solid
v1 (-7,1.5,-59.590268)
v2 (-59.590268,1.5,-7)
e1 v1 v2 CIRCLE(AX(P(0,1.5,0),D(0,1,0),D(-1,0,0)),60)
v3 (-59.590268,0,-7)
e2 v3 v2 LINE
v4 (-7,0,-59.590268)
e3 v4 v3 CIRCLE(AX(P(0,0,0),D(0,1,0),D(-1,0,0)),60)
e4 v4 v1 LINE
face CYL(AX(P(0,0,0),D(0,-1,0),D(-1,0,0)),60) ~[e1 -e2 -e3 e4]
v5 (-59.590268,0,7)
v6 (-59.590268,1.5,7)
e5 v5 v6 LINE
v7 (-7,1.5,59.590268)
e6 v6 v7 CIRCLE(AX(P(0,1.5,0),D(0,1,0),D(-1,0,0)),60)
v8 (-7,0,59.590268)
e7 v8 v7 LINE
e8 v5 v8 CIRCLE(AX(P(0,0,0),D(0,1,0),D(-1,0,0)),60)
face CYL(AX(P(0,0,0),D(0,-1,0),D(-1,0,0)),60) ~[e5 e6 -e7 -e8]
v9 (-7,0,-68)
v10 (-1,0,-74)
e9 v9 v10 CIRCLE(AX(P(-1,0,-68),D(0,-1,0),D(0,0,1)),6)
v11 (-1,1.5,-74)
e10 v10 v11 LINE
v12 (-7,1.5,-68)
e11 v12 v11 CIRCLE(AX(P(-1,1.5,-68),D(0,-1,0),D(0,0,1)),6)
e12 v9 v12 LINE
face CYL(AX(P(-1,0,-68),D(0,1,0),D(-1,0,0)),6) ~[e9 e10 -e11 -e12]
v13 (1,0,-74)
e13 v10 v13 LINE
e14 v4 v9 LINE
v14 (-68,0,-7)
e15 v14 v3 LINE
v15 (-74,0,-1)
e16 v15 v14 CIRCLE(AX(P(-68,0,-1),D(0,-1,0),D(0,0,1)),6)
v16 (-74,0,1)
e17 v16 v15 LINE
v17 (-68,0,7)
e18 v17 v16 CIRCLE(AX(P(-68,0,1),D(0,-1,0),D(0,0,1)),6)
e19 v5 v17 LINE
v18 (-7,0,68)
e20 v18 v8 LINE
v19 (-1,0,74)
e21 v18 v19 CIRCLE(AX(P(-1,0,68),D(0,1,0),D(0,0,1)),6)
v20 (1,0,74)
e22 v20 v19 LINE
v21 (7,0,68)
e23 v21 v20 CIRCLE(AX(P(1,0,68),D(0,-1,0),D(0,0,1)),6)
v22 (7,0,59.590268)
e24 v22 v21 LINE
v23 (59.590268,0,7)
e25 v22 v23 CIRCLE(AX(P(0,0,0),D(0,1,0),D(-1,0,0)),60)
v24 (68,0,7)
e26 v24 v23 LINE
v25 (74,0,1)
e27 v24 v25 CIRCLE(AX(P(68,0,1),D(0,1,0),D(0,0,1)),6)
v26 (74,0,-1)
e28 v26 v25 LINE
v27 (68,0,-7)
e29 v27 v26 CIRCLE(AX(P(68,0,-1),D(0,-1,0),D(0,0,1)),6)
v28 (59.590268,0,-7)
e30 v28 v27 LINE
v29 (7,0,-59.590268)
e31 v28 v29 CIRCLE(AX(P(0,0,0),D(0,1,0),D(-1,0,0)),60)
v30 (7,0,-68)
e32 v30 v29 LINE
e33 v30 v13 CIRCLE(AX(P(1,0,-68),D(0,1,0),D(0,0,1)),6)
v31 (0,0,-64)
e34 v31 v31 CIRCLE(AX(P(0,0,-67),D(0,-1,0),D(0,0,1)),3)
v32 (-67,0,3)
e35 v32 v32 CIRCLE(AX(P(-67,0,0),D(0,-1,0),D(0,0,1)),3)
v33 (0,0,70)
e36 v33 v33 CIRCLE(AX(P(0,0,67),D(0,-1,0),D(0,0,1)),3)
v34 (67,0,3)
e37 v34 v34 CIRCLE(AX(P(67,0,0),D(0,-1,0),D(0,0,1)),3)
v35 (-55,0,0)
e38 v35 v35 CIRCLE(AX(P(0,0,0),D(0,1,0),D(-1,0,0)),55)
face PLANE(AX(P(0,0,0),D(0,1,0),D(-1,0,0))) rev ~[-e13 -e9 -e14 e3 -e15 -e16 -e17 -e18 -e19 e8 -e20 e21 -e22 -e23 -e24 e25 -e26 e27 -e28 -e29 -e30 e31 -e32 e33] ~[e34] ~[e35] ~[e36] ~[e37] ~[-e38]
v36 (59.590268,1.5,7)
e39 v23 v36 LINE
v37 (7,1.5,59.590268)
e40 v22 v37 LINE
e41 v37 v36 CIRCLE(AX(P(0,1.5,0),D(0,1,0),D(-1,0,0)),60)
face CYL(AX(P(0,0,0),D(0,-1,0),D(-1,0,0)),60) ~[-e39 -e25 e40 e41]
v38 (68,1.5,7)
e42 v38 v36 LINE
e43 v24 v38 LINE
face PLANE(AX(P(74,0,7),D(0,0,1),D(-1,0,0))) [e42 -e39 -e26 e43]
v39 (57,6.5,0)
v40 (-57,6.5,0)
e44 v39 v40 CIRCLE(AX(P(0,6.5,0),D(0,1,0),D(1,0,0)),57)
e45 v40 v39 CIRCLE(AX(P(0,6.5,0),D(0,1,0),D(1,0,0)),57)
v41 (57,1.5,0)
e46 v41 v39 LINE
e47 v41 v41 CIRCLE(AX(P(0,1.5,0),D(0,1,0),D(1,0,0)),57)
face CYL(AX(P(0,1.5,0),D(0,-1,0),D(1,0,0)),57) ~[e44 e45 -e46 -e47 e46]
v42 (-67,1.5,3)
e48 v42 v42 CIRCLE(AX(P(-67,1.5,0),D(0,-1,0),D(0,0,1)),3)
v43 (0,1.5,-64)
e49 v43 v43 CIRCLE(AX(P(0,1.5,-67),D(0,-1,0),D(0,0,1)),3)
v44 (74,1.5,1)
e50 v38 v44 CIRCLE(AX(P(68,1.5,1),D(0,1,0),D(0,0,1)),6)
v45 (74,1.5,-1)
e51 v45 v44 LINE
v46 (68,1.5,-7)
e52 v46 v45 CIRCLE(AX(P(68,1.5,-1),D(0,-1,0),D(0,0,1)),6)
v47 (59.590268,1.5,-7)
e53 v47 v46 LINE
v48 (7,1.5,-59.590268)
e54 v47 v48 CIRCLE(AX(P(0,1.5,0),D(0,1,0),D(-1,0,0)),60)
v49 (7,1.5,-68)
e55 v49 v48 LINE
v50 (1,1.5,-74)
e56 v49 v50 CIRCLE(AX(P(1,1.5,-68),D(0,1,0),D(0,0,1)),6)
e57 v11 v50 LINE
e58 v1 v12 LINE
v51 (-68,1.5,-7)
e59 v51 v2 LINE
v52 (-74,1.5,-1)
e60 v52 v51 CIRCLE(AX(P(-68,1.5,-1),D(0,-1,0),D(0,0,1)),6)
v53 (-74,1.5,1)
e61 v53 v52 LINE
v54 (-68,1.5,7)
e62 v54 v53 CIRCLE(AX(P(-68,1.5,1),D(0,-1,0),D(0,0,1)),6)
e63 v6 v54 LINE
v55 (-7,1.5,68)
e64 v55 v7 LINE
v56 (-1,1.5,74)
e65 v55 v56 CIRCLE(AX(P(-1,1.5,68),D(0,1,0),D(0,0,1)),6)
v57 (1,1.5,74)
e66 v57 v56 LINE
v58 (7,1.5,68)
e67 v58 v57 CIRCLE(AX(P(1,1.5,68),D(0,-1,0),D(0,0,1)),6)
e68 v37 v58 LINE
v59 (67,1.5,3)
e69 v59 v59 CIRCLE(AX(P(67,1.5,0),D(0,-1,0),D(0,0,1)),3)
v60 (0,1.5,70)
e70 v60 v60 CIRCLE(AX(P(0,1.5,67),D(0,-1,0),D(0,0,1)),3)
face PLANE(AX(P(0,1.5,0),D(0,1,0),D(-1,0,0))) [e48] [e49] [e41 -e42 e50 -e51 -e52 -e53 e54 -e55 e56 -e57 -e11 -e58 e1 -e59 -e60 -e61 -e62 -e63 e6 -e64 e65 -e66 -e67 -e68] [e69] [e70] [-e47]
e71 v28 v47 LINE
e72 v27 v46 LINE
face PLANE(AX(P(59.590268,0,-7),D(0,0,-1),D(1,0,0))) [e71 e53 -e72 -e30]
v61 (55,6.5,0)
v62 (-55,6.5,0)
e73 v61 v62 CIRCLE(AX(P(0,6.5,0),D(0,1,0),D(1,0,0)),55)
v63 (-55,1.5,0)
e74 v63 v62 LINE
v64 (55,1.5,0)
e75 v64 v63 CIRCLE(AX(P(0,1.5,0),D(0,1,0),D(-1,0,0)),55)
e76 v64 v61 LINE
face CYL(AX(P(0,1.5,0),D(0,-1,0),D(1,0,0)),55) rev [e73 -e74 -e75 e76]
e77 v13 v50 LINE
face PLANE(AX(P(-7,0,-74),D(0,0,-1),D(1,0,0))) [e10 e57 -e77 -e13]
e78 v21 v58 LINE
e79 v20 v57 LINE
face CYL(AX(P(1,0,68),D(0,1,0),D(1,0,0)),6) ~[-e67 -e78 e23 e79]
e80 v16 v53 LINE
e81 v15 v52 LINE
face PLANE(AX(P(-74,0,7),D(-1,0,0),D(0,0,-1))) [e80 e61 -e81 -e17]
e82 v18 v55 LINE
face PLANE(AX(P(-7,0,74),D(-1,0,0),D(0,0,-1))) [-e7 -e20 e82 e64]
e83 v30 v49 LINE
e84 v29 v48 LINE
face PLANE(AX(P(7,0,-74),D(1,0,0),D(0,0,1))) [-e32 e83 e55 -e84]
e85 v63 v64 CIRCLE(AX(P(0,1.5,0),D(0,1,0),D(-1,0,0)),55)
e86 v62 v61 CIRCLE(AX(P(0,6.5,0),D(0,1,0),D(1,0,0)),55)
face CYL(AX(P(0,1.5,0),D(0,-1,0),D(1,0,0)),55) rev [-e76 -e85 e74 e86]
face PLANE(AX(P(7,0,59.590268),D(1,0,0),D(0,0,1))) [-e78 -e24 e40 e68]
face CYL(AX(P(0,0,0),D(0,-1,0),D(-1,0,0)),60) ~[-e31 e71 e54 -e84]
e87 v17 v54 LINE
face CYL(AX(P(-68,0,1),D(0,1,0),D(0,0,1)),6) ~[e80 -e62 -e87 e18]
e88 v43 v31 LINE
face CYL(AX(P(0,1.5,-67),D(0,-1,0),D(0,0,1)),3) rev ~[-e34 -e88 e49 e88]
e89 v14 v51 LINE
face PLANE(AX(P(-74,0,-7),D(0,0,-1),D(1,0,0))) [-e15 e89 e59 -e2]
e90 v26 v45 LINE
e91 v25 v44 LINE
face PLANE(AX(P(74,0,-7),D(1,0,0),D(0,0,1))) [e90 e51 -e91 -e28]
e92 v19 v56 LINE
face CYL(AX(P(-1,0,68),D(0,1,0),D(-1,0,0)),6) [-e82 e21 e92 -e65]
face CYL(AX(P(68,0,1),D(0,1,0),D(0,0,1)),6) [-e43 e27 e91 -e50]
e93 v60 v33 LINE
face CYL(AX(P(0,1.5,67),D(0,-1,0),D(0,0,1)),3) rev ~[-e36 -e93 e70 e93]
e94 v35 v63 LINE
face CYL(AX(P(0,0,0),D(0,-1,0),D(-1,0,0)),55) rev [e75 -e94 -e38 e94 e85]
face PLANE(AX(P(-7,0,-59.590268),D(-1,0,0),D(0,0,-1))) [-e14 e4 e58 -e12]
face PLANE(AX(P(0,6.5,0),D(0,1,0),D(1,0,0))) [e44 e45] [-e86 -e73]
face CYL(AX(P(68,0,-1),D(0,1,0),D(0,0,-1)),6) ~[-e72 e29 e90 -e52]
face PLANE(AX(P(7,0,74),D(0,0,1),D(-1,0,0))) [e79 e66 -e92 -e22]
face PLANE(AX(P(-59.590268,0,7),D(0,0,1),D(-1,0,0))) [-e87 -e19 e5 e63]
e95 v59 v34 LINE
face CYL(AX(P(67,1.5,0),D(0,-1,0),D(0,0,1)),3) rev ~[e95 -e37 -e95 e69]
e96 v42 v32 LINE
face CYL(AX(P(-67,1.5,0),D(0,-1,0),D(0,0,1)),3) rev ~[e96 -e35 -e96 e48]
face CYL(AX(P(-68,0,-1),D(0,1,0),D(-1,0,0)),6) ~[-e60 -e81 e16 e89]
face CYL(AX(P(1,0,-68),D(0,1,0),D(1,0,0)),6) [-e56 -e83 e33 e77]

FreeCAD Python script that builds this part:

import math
import FreeCAD as App
import Part
import Sketcher


def edges_at(feature, points):
    """Names of the edges that pass closest to the given points."""
    edges = feature.Shape.Edges
    near = lambda p: min(range(len(edges)), key=lambda i: edges[i].distToShape(Part.Vertex(*p))[0])
    return sorted({f"Edge{near(p) + 1}" for p in points})

doc = App.newDocument("Part")
params = doc.addObject("Spreadsheet::Sheet", "Params")
for row, (alias, value) in enumerate([
    ("sketch1_diameter", "110 mm"),
    ("sketch1_radius", "60 mm"),
    ("sketch1_width", "14 mm"),
    ("pad1_length", "1.5 mm"),
    ("fillet_radius", "6 mm"),
    ("sketch2_diameter", "6 mm"),
    ("hole_diameter", "6 mm"),
    ("sketch3_diameter", "114 mm"),
    ("sketch3_diameter2", "110 mm"),
    ("pad2_length", "5 mm"),
], start=1):
    params.set(f"A{row}", alias)
    params.set(f"B{row}", "=" + value)
    params.setAlias(f"B{row}", alias)

body = doc.addObject("PartDesign::Body", "Body")

sketch1 = body.newObject("Sketcher::SketchObject", "Sketch")
sketch1.AttachmentSupport = (doc.getObject("XZ_Plane"), [""])
sketch1.MapMode = "FlatFace"
sketch1.addGeometry([
    Part.LineSegment(App.Vector(-60, -7, 0), App.Vector(-74, -7, 0)),
    Part.LineSegment(App.Vector(-74, -7, 0), App.Vector(-74, 7, 0)),
    Part.LineSegment(App.Vector(-74, 7, 0), App.Vector(-60, 7, 0)),
    Part.ArcOfCircle(Part.Circle(App.Vector(0, 0, 0), App.Vector(0, 0, 1), 60), math.radians(97), math.radians(173)),
    Part.LineSegment(App.Vector(-7, 60, 0), App.Vector(-7, 74, 0)),
    Part.LineSegment(App.Vector(-7, 74, 0), App.Vector(7, 74, 0)),
    Part.LineSegment(App.Vector(7, 74, 0), App.Vector(7, 60, 0)),
    Part.ArcOfCircle(Part.Circle(App.Vector(0, 0, 0), App.Vector(0, 0, 1), 60), math.radians(7), math.radians(83)),
    Part.LineSegment(App.Vector(60, 7, 0), App.Vector(74, 7, 0)),
    Part.LineSegment(App.Vector(74, 7, 0), App.Vector(74, -7, 0)),
    Part.LineSegment(App.Vector(74, -7, 0), App.Vector(60, -7, 0)),
    Part.ArcOfCircle(Part.Circle(App.Vector(0, 0, 0), App.Vector(0, 0, 1), 60), math.radians(-83), math.radians(-7)),
    Part.LineSegment(App.Vector(7, -60, 0), App.Vector(7, -74, 0)),
    Part.LineSegment(App.Vector(7, -74, 0), App.Vector(-7, -74, 0)),
    Part.LineSegment(App.Vector(-7, -74, 0), App.Vector(-7, -60, 0)),
    Part.ArcOfCircle(Part.Circle(App.Vector(0, 0, 0), App.Vector(0, 0, 1), 60), math.radians(-173), math.radians(-97)),
    Part.Circle(App.Vector(0, 0, 0), App.Vector(0, 0, 1), 55),
], False)
sketch1.addConstraint([
    Sketcher.Constraint("Coincident", 0, 2, 1, 1),
    Sketcher.Constraint("Coincident", 1, 2, 2, 1),
    Sketcher.Constraint("Coincident", 2, 2, 3, 2),
    Sketcher.Constraint("Coincident", 3, 1, 4, 1),
    Sketcher.Constraint("Coincident", 4, 2, 5, 1),
    Sketcher.Constraint("Coincident", 5, 2, 6, 1),
    Sketcher.Constraint("Coincident", 6, 2, 7, 2),
    Sketcher.Constraint("Coincident", 7, 1, 8, 1),
    Sketcher.Constraint("Coincident", 8, 2, 9, 1),
    Sketcher.Constraint("Coincident", 9, 2, 10, 1),
    Sketcher.Constraint("Coincident", 10, 2, 11, 2),
    Sketcher.Constraint("Coincident", 11, 1, 12, 1),
    Sketcher.Constraint("Coincident", 12, 2, 13, 1),
    Sketcher.Constraint("Coincident", 13, 2, 14, 1),
    Sketcher.Constraint("Coincident", 14, 2, 15, 2),
    Sketcher.Constraint("Coincident", 15, 1, 0, 1),
    Sketcher.Constraint("Horizontal", 0),
    Sketcher.Constraint("Vertical", 1),
    Sketcher.Constraint("Horizontal", 2),
    Sketcher.Constraint("Vertical", 4),
    Sketcher.Constraint("Horizontal", 5),
    Sketcher.Constraint("Vertical", 6),
    Sketcher.Constraint("Horizontal", 8),
    Sketcher.Constraint("Vertical", 9),
    Sketcher.Constraint("Horizontal", 10),
    Sketcher.Constraint("Vertical", 12),
    Sketcher.Constraint("Horizontal", 13),
    Sketcher.Constraint("Vertical", 14),
    Sketcher.Constraint("Coincident", 3, 3, -1, 1),
    Sketcher.Constraint("Coincident", 7, 3, -1, 1),
    Sketcher.Constraint("Coincident", 11, 3, -1, 1),
    Sketcher.Constraint("Coincident", 15, 3, -1, 1),
    Sketcher.Constraint("Coincident", 16, 3, -1, 1),
    Sketcher.Constraint("Equal", 3, 7),
    Sketcher.Constraint("Equal", 7, 11),
    Sketcher.Constraint("Equal", 11, 15),
    Sketcher.Constraint("Symmetric", 0, 2, 8, 2, -1, 1),
    Sketcher.Constraint("Symmetric", 4, 2, 12, 2, -1, 1),
    Sketcher.Constraint("Horizontal", 3, 1, 6, 2),
    Sketcher.Constraint("Horizontal", 2, 2, 7, 1),
    Sketcher.Constraint("Horizontal", 0, 2, 9, 2),
    Sketcher.Constraint("Horizontal", 11, 1, 14, 2),
    Sketcher.Constraint("Equal", 13, 1),
    Sketcher.Constraint("Equal", 10, 4),
    Sketcher.Constraint("Diameter", 16, 110.0),
    Sketcher.Constraint("Radius", 3, 60.0),
    Sketcher.Constraint("DistanceX", 5, 1, 5, 2, 14.0),
    Sketcher.Constraint("DistanceX", 0, 2, -1, 1, 74.0),
])
sketch1.setExpression("Constraints[44]", "Params.sketch1_diameter")
sketch1.setExpression("Constraints[45]", "Params.sketch1_radius")
sketch1.setExpression("Constraints[46]", "Params.sketch1_width")
pad1 = body.newObject("PartDesign::Pad", "Pad")
pad1.Profile = sketch1
pad1.setExpression("Length", "Params.pad1_length")
pad1.Reversed = True
doc.recompute()

fillet = body.newObject("PartDesign::Fillet", "Fillet")
fillet.Base = (pad1, edges_at(pad1, [
    (74, 0.75, -7),
    (74, 0.75, 7),
    (7, 0.75, -74),
    (-7, 0.75, -74),
    (-74, 0.75, -7),
    (-74, 0.75, 7),
    (-7, 0.75, 74),
    (7, 0.75, 74),
]))
fillet.setExpression("Radius", "Params.fillet_radius")

sketch2 = body.newObject("Sketcher::SketchObject", "Sketch001")
sketch2.AttachmentSupport = (doc.getObject("XZ_Plane"), [""])
sketch2.MapMode = "FlatFace"
sketch2.AttachmentOffset = App.Placement(App.Vector(0, 0, -1.5), App.Rotation())
sketch2.addGeometry([
    Part.Circle(App.Vector(0, 67, 0), App.Vector(0, 0, 1), 3),
    Part.Circle(App.Vector(-67, 0, 0), App.Vector(0, 0, 1), 3),
    Part.Circle(App.Vector(0, -67, 0), App.Vector(0, 0, 1), 3),
    Part.Circle(App.Vector(67, 0, 0), App.Vector(0, 0, 1), 3),
], False)
sketch2.addConstraint([
    Sketcher.Constraint("Equal", 0, 1),
    Sketcher.Constraint("Equal", 1, 2),
    Sketcher.Constraint("Equal", 2, 3),
    Sketcher.Constraint("Symmetric", 0, 3, 2, 3, -1, 1),
    Sketcher.Constraint("Symmetric", 1, 3, 3, 3, -1, 1),
    Sketcher.Constraint("PointOnObject", 0, 3, -2),
    Sketcher.Constraint("PointOnObject", 1, 3, -1),
    Sketcher.Constraint("Diameter", 0, 6.0),
    Sketcher.Constraint("DistanceY", -1, 1, 0, 3, 67.0),
    Sketcher.Constraint("DistanceX", 1, 3, -1, 1, 67.0),
])
sketch2.setExpression("Constraints[7]", "Params.sketch2_diameter")
doc.recompute()
hole = body.newObject("PartDesign::Hole", "Hole")
hole.Profile = sketch2
hole.ThreadType = "None"
hole.setExpression("Diameter", "Params.hole_diameter")
hole.DepthType = "ThroughAll"
hole.Reversed = True

sketch3 = body.newObject("Sketcher::SketchObject", "Sketch002")
sketch3.AttachmentSupport = (doc.getObject("XZ_Plane"), [""])
sketch3.MapMode = "FlatFace"
sketch3.AttachmentOffset = App.Placement(App.Vector(0, 0, -1.5), App.Rotation())
sketch3.addGeometry([
    Part.Circle(App.Vector(0, 0, 0), App.Vector(0, 0, 1), 57),
    Part.Circle(App.Vector(0, 0, 0), App.Vector(0, 0, 1), 55),
], False)
sketch3.addConstraint([
    Sketcher.Constraint("Coincident", 0, 3, -1, 1),
    Sketcher.Constraint("Coincident", 1, 3, -1, 1),
    Sketcher.Constraint("Diameter", 0, 114.0),
    Sketcher.Constraint("Diameter", 1, 110.0),
])
sketch3.setExpression("Constraints[2]", "Params.sketch3_diameter")
sketch3.setExpression("Constraints[3]", "Params.sketch3_diameter2")
pad2 = body.newObject("PartDesign::Pad", "Pad001")
pad2.Profile = sketch3
pad2.setExpression("Length", "Params.pad2_length")
pad2.Reversed = True

doc.recompute()
